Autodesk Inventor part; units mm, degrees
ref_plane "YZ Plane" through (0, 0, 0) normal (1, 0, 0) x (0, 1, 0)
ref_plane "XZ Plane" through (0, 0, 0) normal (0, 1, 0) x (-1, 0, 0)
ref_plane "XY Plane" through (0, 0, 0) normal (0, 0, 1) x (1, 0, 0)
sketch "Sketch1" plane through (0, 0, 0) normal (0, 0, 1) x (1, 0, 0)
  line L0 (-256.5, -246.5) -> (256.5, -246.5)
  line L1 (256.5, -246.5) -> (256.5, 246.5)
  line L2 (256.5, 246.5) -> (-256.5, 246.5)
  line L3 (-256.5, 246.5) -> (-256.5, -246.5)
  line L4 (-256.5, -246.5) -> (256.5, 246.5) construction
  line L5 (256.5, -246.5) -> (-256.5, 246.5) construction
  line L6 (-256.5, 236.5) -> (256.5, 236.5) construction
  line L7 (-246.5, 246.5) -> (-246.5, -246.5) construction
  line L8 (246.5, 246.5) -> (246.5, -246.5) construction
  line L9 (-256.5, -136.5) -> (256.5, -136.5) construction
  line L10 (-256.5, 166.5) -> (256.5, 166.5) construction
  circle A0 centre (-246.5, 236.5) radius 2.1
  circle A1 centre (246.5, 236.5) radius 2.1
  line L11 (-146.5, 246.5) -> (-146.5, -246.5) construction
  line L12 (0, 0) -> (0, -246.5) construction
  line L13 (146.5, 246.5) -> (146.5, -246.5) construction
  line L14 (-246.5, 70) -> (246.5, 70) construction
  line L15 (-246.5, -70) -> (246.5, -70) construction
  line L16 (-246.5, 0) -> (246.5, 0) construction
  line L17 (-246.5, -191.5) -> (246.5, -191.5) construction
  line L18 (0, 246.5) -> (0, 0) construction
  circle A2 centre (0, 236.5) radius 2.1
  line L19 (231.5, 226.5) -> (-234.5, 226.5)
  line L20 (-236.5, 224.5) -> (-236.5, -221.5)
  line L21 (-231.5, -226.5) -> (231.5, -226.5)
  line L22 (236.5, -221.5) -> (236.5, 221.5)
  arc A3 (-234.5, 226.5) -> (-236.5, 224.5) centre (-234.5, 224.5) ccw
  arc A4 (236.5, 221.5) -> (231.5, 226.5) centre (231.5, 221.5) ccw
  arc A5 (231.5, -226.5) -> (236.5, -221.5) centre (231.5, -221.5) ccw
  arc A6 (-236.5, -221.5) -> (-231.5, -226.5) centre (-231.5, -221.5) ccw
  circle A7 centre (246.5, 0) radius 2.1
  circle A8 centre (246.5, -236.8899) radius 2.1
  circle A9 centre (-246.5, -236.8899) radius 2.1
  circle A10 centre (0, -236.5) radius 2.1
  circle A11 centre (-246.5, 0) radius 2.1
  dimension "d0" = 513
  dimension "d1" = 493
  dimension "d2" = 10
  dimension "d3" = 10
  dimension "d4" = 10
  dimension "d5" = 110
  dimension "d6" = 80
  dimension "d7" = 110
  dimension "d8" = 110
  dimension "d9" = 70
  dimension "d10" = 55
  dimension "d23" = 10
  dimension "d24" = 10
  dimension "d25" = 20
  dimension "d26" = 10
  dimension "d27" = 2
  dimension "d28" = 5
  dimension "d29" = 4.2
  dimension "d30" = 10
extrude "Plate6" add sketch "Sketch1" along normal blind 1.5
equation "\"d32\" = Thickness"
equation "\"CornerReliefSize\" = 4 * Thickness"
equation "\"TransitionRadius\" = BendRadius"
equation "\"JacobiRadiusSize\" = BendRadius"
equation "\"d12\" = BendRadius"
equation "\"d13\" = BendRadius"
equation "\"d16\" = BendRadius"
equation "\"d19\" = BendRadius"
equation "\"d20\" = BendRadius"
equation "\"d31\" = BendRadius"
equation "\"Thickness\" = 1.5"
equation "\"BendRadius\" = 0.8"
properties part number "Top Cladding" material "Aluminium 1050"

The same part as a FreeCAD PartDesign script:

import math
import FreeCAD as App
import Part
import Sketcher
from FreeCAD import Vector
Q = App.Units.Quantity


def add_polygon(sketch, points):
    """Adds a closed chain of lines whose ends are joined by coincident constraints."""
    first, n = sketch.GeometryCount, len(points)
    for a, b in zip(points, points[1:] + points[:1]):
        sketch.addGeometry(Part.LineSegment(App.Vector(*a, 0), App.Vector(*b, 0)), False)
    for i in range(n):
        sketch.addConstraint(Sketcher.Constraint("Coincident", first + i, 2, first + (i + 1) % n, 1))

doc = App.newDocument("Part")
body = doc.addObject("PartDesign::Body", "Body")

# Sketch on XY plane
sketch1 = body.newObject("Sketcher::SketchObject", "Sketch")
sketch1.AttachmentSupport = (doc.getObject("XY_Plane"), [""])
sketch1.MapMode = "FlatFace"
add_polygon(sketch1, [(-256.5, 246.5), (-256.5, -246.5), (256.5, -246.5), (256.5, 246.5)])  # lines 0-3
sketch1.addGeometry(Part.Circle(Vector(-246.5, -236.9, 0), Vector(0, 0, 1), 2.1), False)  # 4
sketch1.addGeometry(Part.Circle(Vector(0, -236.5, 0), Vector(0, 0, 1), 2.1), False)  # 5
sketch1.addGeometry(Part.Circle(Vector(246.5, -236.9, 0), Vector(0, 0, 1), 2.1), False)  # 6
sketch1.addGeometry(Part.Circle(Vector(-246.5, 0, 0), Vector(0, 0, 1), 2.1), False)  # 7
sketch1.addGeometry(Part.Circle(Vector(-246.5, 236.5, 0), Vector(0, 0, 1), 2.1), False)  # 8
sketch1.addGeometry(Part.LineSegment(Vector(-234.5, 226.5, 0), Vector(231.5, 226.5, 0)), False)  # 9
sketch1.addGeometry(Part.ArcOfCircle(Part.Circle(Vector(231.5, 221.5, 0), Vector(0, 0, 1), 5), math.radians(0), math.radians(90)), False)  # 10
sketch1.addGeometry(Part.LineSegment(Vector(236.5, 221.5, 0), Vector(236.5, -221.5, 0)), False)  # 11
sketch1.addGeometry(Part.ArcOfCircle(Part.Circle(Vector(231.5, -221.5, 0), Vector(0, 0, 1), 5), math.radians(-90), math.radians(0)), False)  # 12
sketch1.addGeometry(Part.LineSegment(Vector(231.5, -226.5, 0), Vector(-231.5, -226.5, 0)), False)  # 13
sketch1.addGeometry(Part.ArcOfCircle(Part.Circle(Vector(-231.5, -221.5, 0), Vector(0, 0, 1), 5), math.radians(180), math.radians(270)), False)  # 14
sketch1.addGeometry(Part.LineSegment(Vector(-236.5, -221.5, 0), Vector(-236.5, 224.5, 0)), False)  # 15
sketch1.addGeometry(Part.ArcOfCircle(Part.Circle(Vector(-234.5, 224.5, 0), Vector(0, 0, 1), 2), math.radians(90), math.radians(180)), False)  # 16
sketch1.addGeometry(Part.Circle(Vector(246.5, 0, 0), Vector(0, 0, 1), 2.1), False)  # 17
sketch1.addGeometry(Part.Circle(Vector(0, 236.5, 0), Vector(0, 0, 1), 2.1), False)  # 18
sketch1.addGeometry(Part.Circle(Vector(246.5, 236.5, 0), Vector(0, 0, 1), 2.1), False)  # 19
sketch1.addConstraint(Sketcher.Constraint("Tangent", 9, 2, 10, 2))
sketch1.addConstraint(Sketcher.Constraint("Tangent", 10, 1, 11, 1))
sketch1.addConstraint(Sketcher.Constraint("Tangent", 11, 2, 12, 2))
sketch1.addConstraint(Sketcher.Constraint("Tangent", 12, 1, 13, 1))
sketch1.addConstraint(Sketcher.Constraint("Tangent", 13, 2, 14, 2))
sketch1.addConstraint(Sketcher.Constraint("Tangent", 14, 1, 15, 1))
sketch1.addConstraint(Sketcher.Constraint("Tangent", 15, 2, 16, 2))
sketch1.addConstraint(Sketcher.Constraint("Tangent", 16, 1, 9, 1))
sketch1.addConstraint(Sketcher.Constraint("Vertical", 0))
sketch1.addConstraint(Sketcher.Constraint("Horizontal", 1))
sketch1.addConstraint(Sketcher.Constraint("Vertical", 2))
sketch1.addConstraint(Sketcher.Constraint("Horizontal", 3))
sketch1.addConstraint(Sketcher.Constraint("Horizontal", 9))
sketch1.addConstraint(Sketcher.Constraint("Vertical", 11))
sketch1.addConstraint(Sketcher.Constraint("Horizontal", 13))
sketch1.addConstraint(Sketcher.Constraint("Vertical", 15))
sketch1.addConstraint(Sketcher.Constraint("Equal", 4, 5))
sketch1.addConstraint(Sketcher.Constraint("Equal", 5, 6))
sketch1.addConstraint(Sketcher.Constraint("Equal", 6, 7))
sketch1.addConstraint(Sketcher.Constraint("Equal", 7, 8))
sketch1.addConstraint(Sketcher.Constraint("Equal", 10, 12))
sketch1.addConstraint(Sketcher.Constraint("Equal", 12, 14))
sketch1.addConstraint(Sketcher.Constraint("Equal", 8, 17))
sketch1.addConstraint(Sketcher.Constraint("Equal", 17, 18))
sketch1.addConstraint(Sketcher.Constraint("Equal", 18, 19))
sketch1.addConstraint(Sketcher.Constraint("Symmetric", 10, 3, 14, 3, -1, 1))
sketch1.addConstraint(Sketcher.Constraint("Symmetric", 7, 3, 17, 3, -1, 1))
sketch1.addConstraint(Sketcher.Constraint("Symmetric", 5, 3, 18, 3, -1, 1))
sketch1.addConstraint(Sketcher.Constraint("Symmetric", 0, 2, 2, 2, -1, 1))
sketch1.addConstraint(Sketcher.Constraint("Symmetric", 4, 3, 6, 3, -2))
sketch1.addConstraint(Sketcher.Constraint("Symmetric", 8, 3, 19, 3, -2))
sketch1.addConstraint(Sketcher.Constraint("PointOnObject", 5, 3, -2))
sketch1.addConstraint(Sketcher.Constraint("PointOnObject", 7, 3, -1))
sketch1.addConstraint(Sketcher.Constraint("Horizontal", 8, 3, 18, 3))
sketch1.addConstraint(Sketcher.Constraint("Vertical", 4, 3, 7, 3))
sketch1.addConstraint(Sketcher.Constraint("Vertical", 7, 3, 8, 3))
sketch1.addConstraint(Sketcher.Constraint("Radius", 10, Q("5 mm")))
sketch1.addConstraint(Sketcher.Constraint("Radius", 16, Q("2 mm")))
sketch1.addConstraint(Sketcher.Constraint("Diameter", 4, Q("4.2 mm")))
sketch1.addConstraint(Sketcher.Constraint("DistanceX", 1, 1, 1, 2, Q("513 mm")))
sketch1.addConstraint(Sketcher.Constraint("DistanceY", 0, 2, 0, 1, Q("493 mm")))
sketch1.addConstraint(Sketcher.Constraint("DistanceX", 4, 3, 6, 3, Q("493 mm")))
sketch1.addConstraint(Sketcher.Constraint("DistanceY", 0, 2, 5, 3, Q("10 mm")))
sketch1.addConstraint(Sketcher.Constraint("DistanceY", 9, 2, 19, 3, Q("10 mm")))
sketch1.addConstraint(Sketcher.Constraint("DistanceX", 10, 1, 19, 3, Q("10 mm")))
sketch1.addConstraint(Sketcher.Constraint("DistanceY", 4, 3, -1, 1, Q("236.89 mm")))
pad1 = body.newObject("PartDesign::Pad", "Pad")
pad1.Profile = sketch1
pad1.Length = 1.5

doc.recompute()
